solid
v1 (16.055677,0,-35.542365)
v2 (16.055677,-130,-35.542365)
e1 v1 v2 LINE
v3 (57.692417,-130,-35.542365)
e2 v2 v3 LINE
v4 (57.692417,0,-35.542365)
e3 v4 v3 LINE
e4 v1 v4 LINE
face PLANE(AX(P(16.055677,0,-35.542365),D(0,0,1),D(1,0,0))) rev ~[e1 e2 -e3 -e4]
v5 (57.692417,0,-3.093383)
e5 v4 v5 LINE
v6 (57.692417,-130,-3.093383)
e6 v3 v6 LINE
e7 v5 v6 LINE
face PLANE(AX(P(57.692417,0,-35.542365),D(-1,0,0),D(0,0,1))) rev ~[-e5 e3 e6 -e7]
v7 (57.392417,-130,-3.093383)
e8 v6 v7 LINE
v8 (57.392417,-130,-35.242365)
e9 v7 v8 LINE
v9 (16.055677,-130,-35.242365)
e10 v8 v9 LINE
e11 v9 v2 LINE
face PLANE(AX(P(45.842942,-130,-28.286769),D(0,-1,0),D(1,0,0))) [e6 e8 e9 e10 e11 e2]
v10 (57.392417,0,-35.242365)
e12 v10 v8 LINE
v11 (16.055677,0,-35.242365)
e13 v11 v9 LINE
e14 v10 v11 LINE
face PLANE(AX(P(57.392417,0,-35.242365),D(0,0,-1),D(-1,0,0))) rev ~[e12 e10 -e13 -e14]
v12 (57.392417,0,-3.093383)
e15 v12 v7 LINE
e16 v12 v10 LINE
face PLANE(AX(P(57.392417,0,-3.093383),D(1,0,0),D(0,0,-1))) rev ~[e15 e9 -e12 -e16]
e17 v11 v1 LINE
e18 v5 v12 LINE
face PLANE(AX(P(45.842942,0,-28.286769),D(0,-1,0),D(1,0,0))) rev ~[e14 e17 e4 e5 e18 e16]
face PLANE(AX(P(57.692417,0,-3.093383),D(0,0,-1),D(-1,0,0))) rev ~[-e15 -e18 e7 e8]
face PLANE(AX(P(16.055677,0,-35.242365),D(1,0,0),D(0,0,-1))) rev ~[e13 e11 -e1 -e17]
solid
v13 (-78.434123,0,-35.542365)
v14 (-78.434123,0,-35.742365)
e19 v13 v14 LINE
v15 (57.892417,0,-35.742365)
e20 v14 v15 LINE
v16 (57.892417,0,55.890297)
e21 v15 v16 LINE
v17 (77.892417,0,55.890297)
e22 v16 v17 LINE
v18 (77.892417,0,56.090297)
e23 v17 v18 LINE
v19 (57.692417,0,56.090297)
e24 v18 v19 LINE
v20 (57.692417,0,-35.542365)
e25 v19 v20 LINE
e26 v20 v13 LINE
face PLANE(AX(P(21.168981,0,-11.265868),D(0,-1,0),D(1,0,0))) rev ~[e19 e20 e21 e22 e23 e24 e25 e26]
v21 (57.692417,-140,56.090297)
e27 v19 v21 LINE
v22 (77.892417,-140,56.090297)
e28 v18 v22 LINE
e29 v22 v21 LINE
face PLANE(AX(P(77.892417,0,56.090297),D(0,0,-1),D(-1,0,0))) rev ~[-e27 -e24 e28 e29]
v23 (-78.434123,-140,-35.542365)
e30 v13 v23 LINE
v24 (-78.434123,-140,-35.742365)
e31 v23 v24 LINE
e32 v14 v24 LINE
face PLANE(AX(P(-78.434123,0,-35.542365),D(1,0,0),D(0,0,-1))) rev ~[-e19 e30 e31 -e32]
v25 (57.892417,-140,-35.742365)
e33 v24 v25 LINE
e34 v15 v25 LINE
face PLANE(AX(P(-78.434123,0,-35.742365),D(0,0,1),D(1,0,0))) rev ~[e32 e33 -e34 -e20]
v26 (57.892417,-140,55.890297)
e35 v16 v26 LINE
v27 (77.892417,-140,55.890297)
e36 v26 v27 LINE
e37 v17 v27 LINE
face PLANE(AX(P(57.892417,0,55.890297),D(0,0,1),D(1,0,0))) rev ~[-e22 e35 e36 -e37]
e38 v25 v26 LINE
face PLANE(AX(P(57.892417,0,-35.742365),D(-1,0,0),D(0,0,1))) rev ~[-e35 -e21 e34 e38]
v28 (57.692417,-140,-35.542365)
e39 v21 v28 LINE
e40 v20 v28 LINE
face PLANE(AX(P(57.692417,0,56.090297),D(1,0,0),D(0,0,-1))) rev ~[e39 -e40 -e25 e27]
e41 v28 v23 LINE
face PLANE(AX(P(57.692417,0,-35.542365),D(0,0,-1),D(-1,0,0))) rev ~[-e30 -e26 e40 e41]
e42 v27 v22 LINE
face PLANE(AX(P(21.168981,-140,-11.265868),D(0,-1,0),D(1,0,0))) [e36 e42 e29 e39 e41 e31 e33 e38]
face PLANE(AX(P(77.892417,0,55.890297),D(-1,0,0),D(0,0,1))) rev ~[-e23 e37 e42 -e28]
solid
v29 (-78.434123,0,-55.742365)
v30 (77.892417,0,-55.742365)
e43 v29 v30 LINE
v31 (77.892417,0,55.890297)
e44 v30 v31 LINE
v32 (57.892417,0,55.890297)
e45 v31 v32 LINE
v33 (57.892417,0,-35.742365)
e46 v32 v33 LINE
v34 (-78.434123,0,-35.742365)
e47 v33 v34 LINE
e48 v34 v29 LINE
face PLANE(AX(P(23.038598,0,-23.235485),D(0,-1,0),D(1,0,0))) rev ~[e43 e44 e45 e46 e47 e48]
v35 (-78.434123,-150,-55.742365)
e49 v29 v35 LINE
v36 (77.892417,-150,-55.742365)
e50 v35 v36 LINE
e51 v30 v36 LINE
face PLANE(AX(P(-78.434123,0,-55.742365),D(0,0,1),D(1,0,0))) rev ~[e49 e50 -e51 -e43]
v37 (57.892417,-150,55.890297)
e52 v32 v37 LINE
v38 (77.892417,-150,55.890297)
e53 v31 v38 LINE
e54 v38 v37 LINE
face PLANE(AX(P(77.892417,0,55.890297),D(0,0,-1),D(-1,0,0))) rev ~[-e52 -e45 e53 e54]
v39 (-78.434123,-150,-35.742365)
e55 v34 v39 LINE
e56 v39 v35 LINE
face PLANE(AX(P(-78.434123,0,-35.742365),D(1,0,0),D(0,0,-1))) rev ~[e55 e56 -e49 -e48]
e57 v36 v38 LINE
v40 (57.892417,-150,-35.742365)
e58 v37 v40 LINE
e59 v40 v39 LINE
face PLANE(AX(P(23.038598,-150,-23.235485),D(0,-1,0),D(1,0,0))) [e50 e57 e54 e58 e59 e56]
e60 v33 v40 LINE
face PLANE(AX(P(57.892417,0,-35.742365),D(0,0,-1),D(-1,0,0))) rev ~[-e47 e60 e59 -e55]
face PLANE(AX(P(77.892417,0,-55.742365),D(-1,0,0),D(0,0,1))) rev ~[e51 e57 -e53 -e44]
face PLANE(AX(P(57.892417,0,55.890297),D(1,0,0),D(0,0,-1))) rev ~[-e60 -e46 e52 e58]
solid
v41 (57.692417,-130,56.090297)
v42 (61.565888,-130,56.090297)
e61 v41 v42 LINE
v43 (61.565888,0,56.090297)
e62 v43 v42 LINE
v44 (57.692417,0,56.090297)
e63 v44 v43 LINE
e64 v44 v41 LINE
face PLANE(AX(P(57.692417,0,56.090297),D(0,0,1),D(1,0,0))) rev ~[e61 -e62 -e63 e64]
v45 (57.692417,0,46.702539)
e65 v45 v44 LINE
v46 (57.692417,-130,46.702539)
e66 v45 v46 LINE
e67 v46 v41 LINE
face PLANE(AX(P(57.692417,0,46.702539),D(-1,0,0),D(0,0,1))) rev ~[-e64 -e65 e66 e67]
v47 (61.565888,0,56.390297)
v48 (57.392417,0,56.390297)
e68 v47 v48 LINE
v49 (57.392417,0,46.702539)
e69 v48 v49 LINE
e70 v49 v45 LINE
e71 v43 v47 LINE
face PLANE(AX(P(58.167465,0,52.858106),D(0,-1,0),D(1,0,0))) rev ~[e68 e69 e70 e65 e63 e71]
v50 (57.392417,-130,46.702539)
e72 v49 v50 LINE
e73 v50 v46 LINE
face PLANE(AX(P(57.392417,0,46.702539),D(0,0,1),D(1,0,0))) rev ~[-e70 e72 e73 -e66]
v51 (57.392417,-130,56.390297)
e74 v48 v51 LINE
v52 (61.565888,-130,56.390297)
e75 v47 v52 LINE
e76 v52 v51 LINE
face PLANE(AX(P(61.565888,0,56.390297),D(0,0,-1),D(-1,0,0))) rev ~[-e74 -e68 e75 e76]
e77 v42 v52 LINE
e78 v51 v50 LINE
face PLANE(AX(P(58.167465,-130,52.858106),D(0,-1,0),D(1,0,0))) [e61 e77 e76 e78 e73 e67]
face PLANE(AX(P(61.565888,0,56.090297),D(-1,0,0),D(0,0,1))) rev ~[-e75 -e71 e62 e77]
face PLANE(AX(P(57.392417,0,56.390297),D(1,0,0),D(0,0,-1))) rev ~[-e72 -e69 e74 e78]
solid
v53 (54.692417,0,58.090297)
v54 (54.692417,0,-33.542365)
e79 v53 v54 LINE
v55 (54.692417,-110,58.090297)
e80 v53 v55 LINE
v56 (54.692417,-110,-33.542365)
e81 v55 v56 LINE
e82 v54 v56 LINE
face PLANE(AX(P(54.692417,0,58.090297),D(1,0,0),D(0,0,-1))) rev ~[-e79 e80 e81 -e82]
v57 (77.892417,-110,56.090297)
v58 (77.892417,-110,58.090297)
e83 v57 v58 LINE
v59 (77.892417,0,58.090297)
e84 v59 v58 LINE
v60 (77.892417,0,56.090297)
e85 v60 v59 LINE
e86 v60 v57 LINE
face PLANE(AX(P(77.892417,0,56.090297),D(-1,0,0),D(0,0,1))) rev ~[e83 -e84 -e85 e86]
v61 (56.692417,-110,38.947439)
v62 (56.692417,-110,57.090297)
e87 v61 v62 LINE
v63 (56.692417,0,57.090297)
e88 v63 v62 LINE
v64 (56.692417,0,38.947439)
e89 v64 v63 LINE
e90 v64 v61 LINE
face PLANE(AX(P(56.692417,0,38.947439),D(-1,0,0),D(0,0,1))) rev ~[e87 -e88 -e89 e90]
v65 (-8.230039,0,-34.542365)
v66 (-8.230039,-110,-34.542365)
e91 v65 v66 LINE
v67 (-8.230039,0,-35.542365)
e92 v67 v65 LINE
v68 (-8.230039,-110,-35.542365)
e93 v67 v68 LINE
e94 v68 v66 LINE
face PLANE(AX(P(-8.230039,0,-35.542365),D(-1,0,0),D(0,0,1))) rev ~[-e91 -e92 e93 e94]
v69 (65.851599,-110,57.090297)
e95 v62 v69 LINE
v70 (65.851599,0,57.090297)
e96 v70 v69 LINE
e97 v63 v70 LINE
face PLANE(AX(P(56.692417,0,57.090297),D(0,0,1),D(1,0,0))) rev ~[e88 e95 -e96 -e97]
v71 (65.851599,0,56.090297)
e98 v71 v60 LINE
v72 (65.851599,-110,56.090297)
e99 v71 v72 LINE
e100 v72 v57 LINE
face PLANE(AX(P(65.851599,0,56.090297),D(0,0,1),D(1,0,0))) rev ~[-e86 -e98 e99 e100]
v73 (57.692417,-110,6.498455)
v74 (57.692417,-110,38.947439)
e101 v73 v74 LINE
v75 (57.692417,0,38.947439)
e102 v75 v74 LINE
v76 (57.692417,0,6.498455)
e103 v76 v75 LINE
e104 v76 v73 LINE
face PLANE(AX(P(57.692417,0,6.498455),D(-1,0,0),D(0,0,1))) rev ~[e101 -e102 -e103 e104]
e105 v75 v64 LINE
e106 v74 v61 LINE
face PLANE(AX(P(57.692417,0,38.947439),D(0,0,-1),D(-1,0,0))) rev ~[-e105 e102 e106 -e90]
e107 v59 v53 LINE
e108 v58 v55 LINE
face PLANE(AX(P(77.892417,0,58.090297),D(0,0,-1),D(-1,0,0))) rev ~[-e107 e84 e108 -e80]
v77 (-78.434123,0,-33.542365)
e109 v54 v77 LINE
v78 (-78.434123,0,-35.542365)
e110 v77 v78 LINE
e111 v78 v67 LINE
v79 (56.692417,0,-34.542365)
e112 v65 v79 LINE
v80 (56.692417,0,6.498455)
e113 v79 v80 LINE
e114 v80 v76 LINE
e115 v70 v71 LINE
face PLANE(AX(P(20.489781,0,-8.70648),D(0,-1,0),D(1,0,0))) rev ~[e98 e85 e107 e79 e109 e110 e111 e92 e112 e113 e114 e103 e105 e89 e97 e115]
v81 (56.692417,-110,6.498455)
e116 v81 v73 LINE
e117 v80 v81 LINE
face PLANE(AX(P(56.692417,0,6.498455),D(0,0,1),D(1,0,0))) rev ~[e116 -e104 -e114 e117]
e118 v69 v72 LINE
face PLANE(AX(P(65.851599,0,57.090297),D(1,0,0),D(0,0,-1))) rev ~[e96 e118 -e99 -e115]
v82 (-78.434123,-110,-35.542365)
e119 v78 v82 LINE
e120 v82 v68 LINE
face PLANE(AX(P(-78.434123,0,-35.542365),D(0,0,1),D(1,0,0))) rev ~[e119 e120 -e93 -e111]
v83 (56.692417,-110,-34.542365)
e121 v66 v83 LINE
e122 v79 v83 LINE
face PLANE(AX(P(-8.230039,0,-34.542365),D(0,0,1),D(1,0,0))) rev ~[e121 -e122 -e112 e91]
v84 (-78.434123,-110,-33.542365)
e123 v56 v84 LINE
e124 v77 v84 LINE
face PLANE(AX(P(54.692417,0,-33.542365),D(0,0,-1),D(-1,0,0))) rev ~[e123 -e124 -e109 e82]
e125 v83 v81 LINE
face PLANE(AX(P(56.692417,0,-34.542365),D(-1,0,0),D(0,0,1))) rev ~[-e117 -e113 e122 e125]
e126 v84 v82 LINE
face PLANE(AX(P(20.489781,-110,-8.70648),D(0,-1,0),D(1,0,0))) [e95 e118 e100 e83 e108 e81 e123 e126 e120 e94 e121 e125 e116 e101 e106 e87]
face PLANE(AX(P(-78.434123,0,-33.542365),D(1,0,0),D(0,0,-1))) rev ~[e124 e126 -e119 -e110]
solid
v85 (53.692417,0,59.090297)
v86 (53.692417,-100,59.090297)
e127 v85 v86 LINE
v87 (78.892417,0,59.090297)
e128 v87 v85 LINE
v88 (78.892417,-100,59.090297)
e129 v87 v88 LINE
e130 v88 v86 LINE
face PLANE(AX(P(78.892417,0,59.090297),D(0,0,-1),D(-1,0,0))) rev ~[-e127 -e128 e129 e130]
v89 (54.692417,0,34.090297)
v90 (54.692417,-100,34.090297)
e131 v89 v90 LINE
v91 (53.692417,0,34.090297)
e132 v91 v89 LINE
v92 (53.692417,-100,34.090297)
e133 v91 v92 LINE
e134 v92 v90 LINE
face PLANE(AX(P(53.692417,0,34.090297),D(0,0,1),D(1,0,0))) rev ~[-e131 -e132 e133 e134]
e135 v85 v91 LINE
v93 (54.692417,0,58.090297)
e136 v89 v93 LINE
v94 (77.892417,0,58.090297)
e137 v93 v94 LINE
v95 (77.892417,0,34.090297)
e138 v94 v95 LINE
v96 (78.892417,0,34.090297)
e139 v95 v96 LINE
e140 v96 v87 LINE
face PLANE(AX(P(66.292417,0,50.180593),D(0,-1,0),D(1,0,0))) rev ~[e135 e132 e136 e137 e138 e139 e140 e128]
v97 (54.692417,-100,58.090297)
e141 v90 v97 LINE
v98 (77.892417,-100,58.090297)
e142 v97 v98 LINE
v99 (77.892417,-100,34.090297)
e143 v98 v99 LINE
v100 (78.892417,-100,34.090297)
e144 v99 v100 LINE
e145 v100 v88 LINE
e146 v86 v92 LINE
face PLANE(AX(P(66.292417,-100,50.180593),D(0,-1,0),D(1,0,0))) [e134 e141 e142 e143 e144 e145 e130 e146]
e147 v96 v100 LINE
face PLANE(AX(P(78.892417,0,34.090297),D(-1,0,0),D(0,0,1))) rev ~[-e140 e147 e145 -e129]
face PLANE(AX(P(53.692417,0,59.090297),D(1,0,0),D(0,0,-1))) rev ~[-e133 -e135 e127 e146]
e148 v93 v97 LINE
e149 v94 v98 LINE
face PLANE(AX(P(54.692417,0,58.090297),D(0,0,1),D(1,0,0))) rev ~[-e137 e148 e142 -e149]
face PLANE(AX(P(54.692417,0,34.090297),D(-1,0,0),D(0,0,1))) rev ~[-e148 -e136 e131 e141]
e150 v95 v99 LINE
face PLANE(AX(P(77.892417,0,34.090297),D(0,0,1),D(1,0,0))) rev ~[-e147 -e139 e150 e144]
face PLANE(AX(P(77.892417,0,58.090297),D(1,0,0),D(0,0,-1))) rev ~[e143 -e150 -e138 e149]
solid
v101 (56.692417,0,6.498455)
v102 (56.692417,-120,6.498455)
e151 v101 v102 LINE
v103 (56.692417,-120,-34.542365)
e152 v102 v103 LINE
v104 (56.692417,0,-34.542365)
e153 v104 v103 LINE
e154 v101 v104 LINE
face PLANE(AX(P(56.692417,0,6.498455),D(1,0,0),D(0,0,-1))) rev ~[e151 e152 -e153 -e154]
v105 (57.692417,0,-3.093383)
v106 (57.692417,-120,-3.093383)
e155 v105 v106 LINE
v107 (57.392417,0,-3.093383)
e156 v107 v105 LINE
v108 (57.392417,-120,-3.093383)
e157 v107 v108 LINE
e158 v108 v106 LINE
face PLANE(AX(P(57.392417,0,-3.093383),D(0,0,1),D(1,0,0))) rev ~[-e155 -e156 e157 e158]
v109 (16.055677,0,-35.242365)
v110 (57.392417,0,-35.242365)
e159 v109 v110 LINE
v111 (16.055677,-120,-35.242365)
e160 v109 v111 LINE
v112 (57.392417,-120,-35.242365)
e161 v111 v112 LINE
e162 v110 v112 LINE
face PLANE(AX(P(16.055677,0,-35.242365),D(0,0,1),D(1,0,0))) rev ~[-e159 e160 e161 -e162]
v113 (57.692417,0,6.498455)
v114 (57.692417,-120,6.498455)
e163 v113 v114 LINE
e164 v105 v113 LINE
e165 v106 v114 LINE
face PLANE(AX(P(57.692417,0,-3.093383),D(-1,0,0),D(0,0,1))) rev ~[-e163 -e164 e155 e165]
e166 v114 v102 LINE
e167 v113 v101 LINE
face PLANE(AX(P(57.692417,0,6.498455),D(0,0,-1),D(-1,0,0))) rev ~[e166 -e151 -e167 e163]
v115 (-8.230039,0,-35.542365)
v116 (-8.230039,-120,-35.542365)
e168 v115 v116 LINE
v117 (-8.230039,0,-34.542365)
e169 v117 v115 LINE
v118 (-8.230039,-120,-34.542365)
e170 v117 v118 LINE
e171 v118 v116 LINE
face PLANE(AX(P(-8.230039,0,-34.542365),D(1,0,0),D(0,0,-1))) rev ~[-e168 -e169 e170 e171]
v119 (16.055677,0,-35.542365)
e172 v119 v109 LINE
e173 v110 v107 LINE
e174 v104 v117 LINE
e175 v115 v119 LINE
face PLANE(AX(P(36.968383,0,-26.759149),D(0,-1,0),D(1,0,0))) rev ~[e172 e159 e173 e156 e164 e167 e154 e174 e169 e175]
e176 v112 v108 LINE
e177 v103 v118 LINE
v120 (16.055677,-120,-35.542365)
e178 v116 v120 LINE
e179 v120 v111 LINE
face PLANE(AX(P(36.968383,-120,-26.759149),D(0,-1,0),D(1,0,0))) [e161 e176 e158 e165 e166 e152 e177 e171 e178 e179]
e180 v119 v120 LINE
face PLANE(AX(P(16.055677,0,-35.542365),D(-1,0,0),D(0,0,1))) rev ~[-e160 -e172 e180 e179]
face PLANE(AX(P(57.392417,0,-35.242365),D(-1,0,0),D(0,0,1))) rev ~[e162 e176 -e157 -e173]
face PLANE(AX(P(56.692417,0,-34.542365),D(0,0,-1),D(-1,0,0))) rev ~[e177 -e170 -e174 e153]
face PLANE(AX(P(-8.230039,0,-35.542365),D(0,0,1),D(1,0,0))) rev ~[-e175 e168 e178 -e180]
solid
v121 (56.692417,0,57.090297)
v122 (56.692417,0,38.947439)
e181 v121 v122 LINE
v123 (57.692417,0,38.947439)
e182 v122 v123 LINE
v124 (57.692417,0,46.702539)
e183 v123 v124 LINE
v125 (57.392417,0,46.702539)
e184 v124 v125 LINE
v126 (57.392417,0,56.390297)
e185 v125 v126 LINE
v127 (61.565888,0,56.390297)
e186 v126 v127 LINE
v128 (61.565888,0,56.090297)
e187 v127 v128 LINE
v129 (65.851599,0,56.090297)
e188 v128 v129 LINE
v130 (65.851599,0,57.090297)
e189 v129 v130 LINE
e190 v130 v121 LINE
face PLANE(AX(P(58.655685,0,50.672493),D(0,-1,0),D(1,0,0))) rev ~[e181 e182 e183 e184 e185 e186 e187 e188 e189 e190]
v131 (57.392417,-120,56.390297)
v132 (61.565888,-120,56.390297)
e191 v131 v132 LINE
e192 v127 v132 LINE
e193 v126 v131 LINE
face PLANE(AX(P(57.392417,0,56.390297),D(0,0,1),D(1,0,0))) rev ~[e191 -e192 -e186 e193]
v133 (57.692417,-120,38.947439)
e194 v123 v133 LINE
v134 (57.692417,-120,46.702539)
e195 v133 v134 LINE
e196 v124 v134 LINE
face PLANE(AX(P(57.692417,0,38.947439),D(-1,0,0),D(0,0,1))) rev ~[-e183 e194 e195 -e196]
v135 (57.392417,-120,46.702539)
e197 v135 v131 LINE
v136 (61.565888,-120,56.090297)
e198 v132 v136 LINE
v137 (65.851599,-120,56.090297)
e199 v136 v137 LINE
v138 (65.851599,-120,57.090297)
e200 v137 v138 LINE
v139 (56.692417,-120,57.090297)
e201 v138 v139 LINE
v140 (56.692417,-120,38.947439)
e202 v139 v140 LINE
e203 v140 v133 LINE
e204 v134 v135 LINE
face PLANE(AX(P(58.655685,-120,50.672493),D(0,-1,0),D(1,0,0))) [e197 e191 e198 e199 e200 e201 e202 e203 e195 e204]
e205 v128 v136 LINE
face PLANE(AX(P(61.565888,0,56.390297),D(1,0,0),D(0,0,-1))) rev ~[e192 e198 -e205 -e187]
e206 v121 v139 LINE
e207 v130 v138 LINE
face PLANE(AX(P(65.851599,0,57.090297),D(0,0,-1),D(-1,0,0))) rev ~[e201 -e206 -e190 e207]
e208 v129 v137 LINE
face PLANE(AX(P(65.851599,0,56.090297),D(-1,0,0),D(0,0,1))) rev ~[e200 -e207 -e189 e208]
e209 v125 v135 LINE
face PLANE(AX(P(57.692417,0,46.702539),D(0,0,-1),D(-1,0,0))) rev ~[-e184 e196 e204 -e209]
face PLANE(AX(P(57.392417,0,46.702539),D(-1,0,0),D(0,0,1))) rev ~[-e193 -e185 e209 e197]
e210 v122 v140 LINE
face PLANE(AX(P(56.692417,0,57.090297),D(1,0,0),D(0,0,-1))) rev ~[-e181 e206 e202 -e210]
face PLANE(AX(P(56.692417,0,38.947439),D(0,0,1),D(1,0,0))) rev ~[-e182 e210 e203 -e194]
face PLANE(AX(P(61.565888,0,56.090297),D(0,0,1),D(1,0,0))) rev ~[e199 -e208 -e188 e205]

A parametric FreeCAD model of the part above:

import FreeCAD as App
import Part
import Sketcher

doc = App.newDocument("Part")
body = doc.addObject("PartDesign::Body", "Body")

sketch1 = body.newObject("Sketcher::SketchObject", "Sketch")
sketch1.AttachmentSupport = (doc.getObject("XZ_Plane"), [""])
sketch1.MapMode = "FlatFace"
sketch1.addGeometry(Part.LineSegment(App.Vector(57.892417, -35.742365, 0), App.Vector(-78.434123, -35.742365, 0)), False)
sketch1.addGeometry(Part.LineSegment(App.Vector(-78.434123, -35.742365, 0), App.Vector(-78.434123, -55.742365, 0)), False)
sketch1.addGeometry(Part.LineSegment(App.Vector(-78.434123, -55.742365, 0), App.Vector(77.892417, -55.742365, 0)), False)
sketch1.addGeometry(Part.LineSegment(App.Vector(77.892417, -55.742365, 0), App.Vector(77.892417, 55.890297, 0)), False)
sketch1.addGeometry(Part.LineSegment(App.Vector(77.892417, 55.890297, 0), App.Vector(57.892417, 55.890297, 0)), False)
sketch1.addGeometry(Part.LineSegment(App.Vector(57.892417, 55.890297, 0), App.Vector(57.892417, -35.742365, 0)), False)
sketch1.addConstraint(Sketcher.Constraint("Coincident", 0, 2, 1, 1))
sketch1.addConstraint(Sketcher.Constraint("Coincident", 1, 2, 2, 1))
sketch1.addConstraint(Sketcher.Constraint("Coincident", 2, 2, 3, 1))
sketch1.addConstraint(Sketcher.Constraint("Coincident", 3, 2, 4, 1))
sketch1.addConstraint(Sketcher.Constraint("Coincident", 4, 2, 5, 1))
sketch1.addConstraint(Sketcher.Constraint("Coincident", 5, 2, 0, 1))
sketch1.addConstraint(Sketcher.Constraint("Horizontal", 0))
sketch1.addConstraint(Sketcher.Constraint("Vertical", 1))
sketch1.addConstraint(Sketcher.Constraint("Horizontal", 2))
sketch1.addConstraint(Sketcher.Constraint("Vertical", 3))
sketch1.addConstraint(Sketcher.Constraint("Horizontal", 4))
sketch1.addConstraint(Sketcher.Constraint("Vertical", 5))
sketch1.addConstraint(Sketcher.Constraint("Equal", 4, 1))
sketch1.addConstraint(Sketcher.Constraint("DistanceX", 4, 2, 4, 1, 20.0))
sketch1.addConstraint(Sketcher.Constraint("DistanceX", 0, 2, 0, 1, 136.32654))
sketch1.addConstraint(Sketcher.Constraint("DistanceY", 3, 1, 3, 2, 111.632662))
sketch1.addConstraint(Sketcher.Constraint("DistanceX", 0, 2, -1, 1, 78.434123))
sketch1.addConstraint(Sketcher.Constraint("DistanceY", 0, 2, -1, 1, 35.742365))
pad1 = body.newObject("PartDesign::Pad", "Pad")
pad1.Profile = sketch1
pad1.Length = 150
body2 = doc.addObject("PartDesign::Body", "Body001")

sketch2 = body2.newObject("Sketcher::SketchObject", "Sketch001")
sketch2.AttachmentSupport = (doc.getObject("XZ_Plane001"), [""])
sketch2.MapMode = "FlatFace"
sketch2.addGeometry(Part.LineSegment(App.Vector(-78.434123, -35.542365, 0), App.Vector(-78.434123, -35.742365, 0)), False)
sketch2.addGeometry(Part.LineSegment(App.Vector(-78.434123, -35.742365, 0), App.Vector(57.892417, -35.742365, 0)), False)
sketch2.addGeometry(Part.LineSegment(App.Vector(57.892417, -35.742365, 0), App.Vector(57.892417, 55.890297, 0)), False)
sketch2.addGeometry(Part.LineSegment(App.Vector(57.892417, 55.890297, 0), App.Vector(77.892417, 55.890297, 0)), False)
sketch2.addGeometry(Part.LineSegment(App.Vector(77.892417, 55.890297, 0), App.Vector(77.892417, 56.090297, 0)), False)
sketch2.addGeometry(Part.LineSegment(App.Vector(77.892417, 56.090297, 0), App.Vector(57.692417, 56.090297, 0)), False)
sketch2.addGeometry(Part.LineSegment(App.Vector(57.692417, 56.090297, 0), App.Vector(57.692417, -35.542365, 0)), False)
sketch2.addGeometry(Part.LineSegment(App.Vector(57.692417, -35.542365, 0), App.Vector(-78.434123, -35.542365, 0)), False)
sketch2.addConstraint(Sketcher.Constraint("Coincident", 0, 2, 1, 1))
sketch2.addConstraint(Sketcher.Constraint("Coincident", 1, 2, 2, 1))
sketch2.addConstraint(Sketcher.Constraint("Coincident", 2, 2, 3, 1))
sketch2.addConstraint(Sketcher.Constraint("Coincident", 3, 2, 4, 1))
sketch2.addConstraint(Sketcher.Constraint("Coincident", 4, 2, 5, 1))
sketch2.addConstraint(Sketcher.Constraint("Coincident", 5, 2, 6, 1))
sketch2.addConstraint(Sketcher.Constraint("Coincident", 6, 2, 7, 1))
sketch2.addConstraint(Sketcher.Constraint("Coincident", 7, 2, 0, 1))
sketch2.addConstraint(Sketcher.Constraint("Vertical", 0))
sketch2.addConstraint(Sketcher.Constraint("Horizontal", 1))
sketch2.addConstraint(Sketcher.Constraint("Vertical", 2))
sketch2.addConstraint(Sketcher.Constraint("Horizontal", 3))
sketch2.addConstraint(Sketcher.Constraint("Vertical", 4))
sketch2.addConstraint(Sketcher.Constraint("Horizontal", 5))
sketch2.addConstraint(Sketcher.Constraint("Vertical", 6))
sketch2.addConstraint(Sketcher.Constraint("Horizontal", 7))
sketch2.addConstraint(Sketcher.Constraint("Equal", 0, 4))
sketch2.addConstraint(Sketcher.Constraint("DistanceX", 3, 1, 3, 2, 20.0))
sketch2.addConstraint(Sketcher.Constraint("DistanceX", 5, 2, 5, 1, 20.2))
sketch2.addConstraint(Sketcher.Constraint("DistanceY", 0, 2, 0, 1, 0.2))
sketch2.addConstraint(Sketcher.Constraint("DistanceX", 1, 1, 1, 2, 136.32654))
sketch2.addConstraint(Sketcher.Constraint("DistanceY", 2, 1, 2, 2, 91.632662))
sketch2.addConstraint(Sketcher.Constraint("DistanceX", 0, 2, -1, 1, 78.434123))
sketch2.addConstraint(Sketcher.Constraint("DistanceY", 0, 2, -1, 1, 35.742365))
pad2 = body2.newObject("PartDesign::Pad", "Pad001")
pad2.Profile = sketch2
pad2.Length = 140
body3 = doc.addObject("PartDesign::Body", "Body002")

sketch3 = body3.newObject("Sketcher::SketchObject", "Sketch002")
sketch3.AttachmentSupport = (doc.getObject("XZ_Plane002"), [""])
sketch3.MapMode = "FlatFace"
sketch3.addGeometry(Part.LineSegment(App.Vector(16.055677, -35.242365, 0), App.Vector(16.055677, -35.542365, 0)), False)
sketch3.addGeometry(Part.LineSegment(App.Vector(16.055677, -35.542365, 0), App.Vector(57.692417, -35.542365, 0)), False)
sketch3.addGeometry(Part.LineSegment(App.Vector(57.692417, -35.542365, 0), App.Vector(57.692417, -3.093383, 0)), False)
sketch3.addGeometry(Part.LineSegment(App.Vector(57.692417, -3.093383, 0), App.Vector(57.392417, -3.093383, 0)), False)
sketch3.addGeometry(Part.LineSegment(App.Vector(57.392417, -3.093383, 0), App.Vector(57.392417, -35.242365, 0)), False)
sketch3.addGeometry(Part.LineSegment(App.Vector(57.392417, -35.242365, 0), App.Vector(16.055677, -35.242365, 0)), False)
sketch3.addConstraint(Sketcher.Constraint("Coincident", 0, 2, 1, 1))
sketch3.addConstraint(Sketcher.Constraint("Coincident", 1, 2, 2, 1))
sketch3.addConstraint(Sketcher.Constraint("Coincident", 2, 2, 3, 1))
sketch3.addConstraint(Sketcher.Constraint("Coincident", 3, 2, 4, 1))
sketch3.addConstraint(Sketcher.Constraint("Coincident", 4, 2, 5, 1))
sketch3.addConstraint(Sketcher.Constraint("Coincident", 5, 2, 0, 1))
sketch3.addConstraint(Sketcher.Constraint("Vertical", 0))
sketch3.addConstraint(Sketcher.Constraint("Horizontal", 1))
sketch3.addConstraint(Sketcher.Constraint("Vertical", 2))
sketch3.addConstraint(Sketcher.Constraint("Horizontal", 3))
sketch3.addConstraint(Sketcher.Constraint("Vertical", 4))
sketch3.addConstraint(Sketcher.Constraint("Horizontal", 5))
sketch3.addConstraint(Sketcher.Constraint("Equal", 3, 0))
sketch3.addConstraint(Sketcher.Constraint("DistanceX", 3, 2, 3, 1, 0.3))
sketch3.addConstraint(Sketcher.Constraint("DistanceX", 1, 1, 1, 2, 41.63674))
sketch3.addConstraint(Sketcher.Constraint("DistanceY", 2, 1, 2, 2, 32.448982))
sketch3.addConstraint(Sketcher.Constraint("DistanceX", -1, 1, 0, 2, 16.055677))
sketch3.addConstraint(Sketcher.Constraint("DistanceY", 0, 2, -1, 1, 35.542365))
pad3 = body3.newObject("PartDesign::Pad", "Pad002")
pad3.Profile = sketch3
pad3.Length = 130
body4 = doc.addObject("PartDesign::Body", "Body003")

sketch4 = body4.newObject("Sketcher::SketchObject", "Sketch003")
sketch4.AttachmentSupport = (doc.getObject("XZ_Plane003"), [""])
sketch4.MapMode = "FlatFace"
sketch4.addGeometry(Part.LineSegment(App.Vector(57.692417, 56.090297, 0), App.Vector(61.565888, 56.090297, 0)), False)
sketch4.addGeometry(Part.LineSegment(App.Vector(61.565888, 56.090297, 0), App.Vector(61.565888, 56.390297, 0)), False)
sketch4.addGeometry(Part.LineSegment(App.Vector(61.565888, 56.390297, 0), App.Vector(57.392417, 56.390297, 0)), False)
sketch4.addGeometry(Part.LineSegment(App.Vector(57.392417, 56.390297, 0), App.Vector(57.392417, 46.702539, 0)), False)
sketch4.addGeometry(Part.LineSegment(App.Vector(57.392417, 46.702539, 0), App.Vector(57.692417, 46.702539, 0)), False)
sketch4.addGeometry(Part.LineSegment(App.Vector(57.692417, 46.702539, 0), App.Vector(57.692417, 56.090297, 0)), False)
sketch4.addConstraint(Sketcher.Constraint("Coincident", 0, 2, 1, 1))
sketch4.addConstraint(Sketcher.Constraint("Coincident", 1, 2, 2, 1))
sketch4.addConstraint(Sketcher.Constraint("Coincident", 2, 2, 3, 1))
sketch4.addConstraint(Sketcher.Constraint("Coincident", 3, 2, 4, 1))
sketch4.addConstraint(Sketcher.Constraint("Coincident", 4, 2, 5, 1))
sketch4.addConstraint(Sketcher.Constraint("Coincident", 5, 2, 0, 1))
sketch4.addConstraint(Sketcher.Constraint("Horizontal", 0))
sketch4.addConstraint(Sketcher.Constraint("Vertical", 1))
sketch4.addConstraint(Sketcher.Constraint("Horizontal", 2))
sketch4.addConstraint(Sketcher.Constraint("Vertical", 3))
sketch4.addConstraint(Sketcher.Constraint("Horizontal", 4))
sketch4.addConstraint(Sketcher.Constraint("Vertical", 5))
sketch4.addConstraint(Sketcher.Constraint("Equal", 4, 1))
sketch4.addConstraint(Sketcher.Constraint("DistanceX", 4, 1, 4, 2, 0.3))
sketch4.addConstraint(Sketcher.Constraint("DistanceX", 0, 1, 0, 2, 3.873471))
sketch4.addConstraint(Sketcher.Constraint("DistanceY", 3, 2, 3, 1, 9.687758))
sketch4.addConstraint(Sketcher.Constraint("DistanceY", -1, 1, 3, 2, 46.702539))
sketch4.addConstraint(Sketcher.Constraint("DistanceX", -1, 1, 0, 2, 61.565888))
pad4 = body4.newObject("PartDesign::Pad", "Pad003")
pad4.Profile = sketch4
pad4.Length = 130
body5 = doc.addObject("PartDesign::Body", "Body004")

sketch5 = body5.newObject("Sketcher::SketchObject", "Sketch004")
sketch5.AttachmentSupport = (doc.getObject("XZ_Plane004"), [""])
sketch5.MapMode = "FlatFace"
sketch5.addGeometry(Part.LineSegment(App.Vector(61.565888, 56.090297, 0), App.Vector(65.851599, 56.090297, 0)), False)
sketch5.addGeometry(Part.LineSegment(App.Vector(65.851599, 56.090297, 0), App.Vector(65.851599, 57.090297, 0)), False)
sketch5.addGeometry(Part.LineSegment(App.Vector(65.851599, 57.090297, 0), App.Vector(56.692417, 57.090297, 0)), False)
sketch5.addGeometry(Part.LineSegment(App.Vector(56.692417, 57.090297, 0), App.Vector(56.692417, 38.947439, 0)), False)
sketch5.addGeometry(Part.LineSegment(App.Vector(56.692417, 38.947439, 0), App.Vector(57.692417, 38.947439, 0)), False)
sketch5.addGeometry(Part.LineSegment(App.Vector(57.692417, 38.947439, 0), App.Vector(57.692417, 46.702539, 0)), False)
sketch5.addGeometry(Part.LineSegment(App.Vector(57.692417, 46.702539, 0), App.Vector(57.392417, 46.702539, 0)), False)
sketch5.addGeometry(Part.LineSegment(App.Vector(57.392417, 46.702539, 0), App.Vector(57.392417, 56.390297, 0)), False)
sketch5.addGeometry(Part.LineSegment(App.Vector(57.392417, 56.390297, 0), App.Vector(61.565888, 56.390297, 0)), False)
sketch5.addGeometry(Part.LineSegment(App.Vector(61.565888, 56.390297, 0), App.Vector(61.565888, 56.090297, 0)), False)
sketch5.addConstraint(Sketcher.Constraint("Coincident", 0, 2, 1, 1))
sketch5.addConstraint(Sketcher.Constraint("Coincident", 1, 2, 2, 1))
sketch5.addConstraint(Sketcher.Constraint("Coincident", 2, 2, 3, 1))
sketch5.addConstraint(Sketcher.Constraint("Coincident", 3, 2, 4, 1))
sketch5.addConstraint(Sketcher.Constraint("Coincident", 4, 2, 5, 1))
sketch5.addConstraint(Sketcher.Constraint("Coincident", 5, 2, 6, 1))
sketch5.addConstraint(Sketcher.Constraint("Coincident", 6, 2, 7, 1))
sketch5.addConstraint(Sketcher.Constraint("Coincident", 7, 2, 8, 1))
sketch5.addConstraint(Sketcher.Constraint("Coincident", 8, 2, 9, 1))
sketch5.addConstraint(Sketcher.Constraint("Coincident", 9, 2, 0, 1))
sketch5.addConstraint(Sketcher.Constraint("Horizontal", 0))
sketch5.addConstraint(Sketcher.Constraint("Vertical", 1))
sketch5.addConstraint(Sketcher.Constraint("Horizontal", 2))
sketch5.addConstraint(Sketcher.Constraint("Vertical", 3))
sketch5.addConstraint(Sketcher.Constraint("Horizontal", 4))
sketch5.addConstraint(Sketcher.Constraint("Vertical", 5))
sketch5.addConstraint(Sketcher.Constraint("Horizontal", 6))
sketch5.addConstraint(Sketcher.Constraint("Vertical", 7))
sketch5.addConstraint(Sketcher.Constraint("Horizontal", 8))
sketch5.addConstraint(Sketcher.Constraint("Vertical", 9))
sketch5.addConstraint(Sketcher.Constraint("Equal", 4, 1))
sketch5.addConstraint(Sketcher.Constraint("Equal", 6, 9))
sketch5.addConstraint(Sketcher.Constraint("DistanceX", 4, 1, 4, 2, 1.0))
sketch5.addConstraint(Sketcher.Constraint("DistanceX", 6, 2, 6, 1, 0.3))
sketch5.addConstraint(Sketcher.Constraint("DistanceY", 5, 1, 5, 2, 7.7551))
sketch5.addConstraint(Sketcher.Constraint("DistanceX", 0, 1, 0, 2, 4.285711))
sketch5.addConstraint(Sketcher.Constraint("DistanceX", 2, 2, 2, 1, 9.159182))
sketch5.addConstraint(Sketcher.Constraint("DistanceX", -1, 1, 0, 2, 65.851599))
sketch5.addConstraint(Sketcher.Constraint("DistanceY", 3, 2, 3, 1, 18.142858))
sketch5.addConstraint(Sketcher.Constraint("DistanceY", -1, 1, 3, 2, 38.947439))
pad5 = body5.newObject("PartDesign::Pad", "Pad004")
pad5.Profile = sketch5
pad5.Length = 120
body6 = doc.addObject("PartDesign::Body", "Body005")

sketch6 = body6.newObject("Sketcher::SketchObject", "Sketch005")
sketch6.AttachmentSupport = (doc.getObject("XZ_Plane005"), [""])
sketch6.MapMode = "FlatFace"
sketch6.addGeometry(Part.LineSegment(App.Vector(-8.230039, -34.542365, 0), App.Vector(-8.230039, -35.542365, 0)), False)
sketch6.addGeometry(Part.LineSegment(App.Vector(-8.230039, -35.542365, 0), App.Vector(16.055677, -35.542365, 0)), False)
sketch6.addGeometry(Part.LineSegment(App.Vector(16.055677, -35.542365, 0), App.Vector(16.055677, -35.242365, 0)), False)
sketch6.addGeometry(Part.LineSegment(App.Vector(16.055677, -35.242365, 0), App.Vector(57.392417, -35.242365, 0)), False)
sketch6.addGeometry(Part.LineSegment(App.Vector(57.392417, -35.242365, 0), App.Vector(57.392417, -3.093383, 0)), False)
sketch6.addGeometry(Part.LineSegment(App.Vector(57.392417, -3.093383, 0), App.Vector(57.692417, -3.093383, 0)), False)
sketch6.addGeometry(Part.LineSegment(App.Vector(57.692417, -3.093383, 0), App.Vector(57.692417, 6.498455, 0)), False)
sketch6.addGeometry(Part.LineSegment(App.Vector(57.692417, 6.498455, 0), App.Vector(56.692417, 6.498455, 0)), False)
sketch6.addGeometry(Part.LineSegment(App.Vector(56.692417, 6.498455, 0), App.Vector(56.692417, -34.542365, 0)), False)
sketch6.addGeometry(Part.LineSegment(App.Vector(56.692417, -34.542365, 0), App.Vector(-8.230039, -34.542365, 0)), False)
sketch6.addConstraint(Sketcher.Constraint("Coincident", 0, 2, 1, 1))
sketch6.addConstraint(Sketcher.Constraint("Coincident", 1, 2, 2, 1))
sketch6.addConstraint(Sketcher.Constraint("Coincident", 2, 2, 3, 1))
sketch6.addConstraint(Sketcher.Constraint("Coincident", 3, 2, 4, 1))
sketch6.addConstraint(Sketcher.Constraint("Coincident", 4, 2, 5, 1))
sketch6.addConstraint(Sketcher.Constraint("Coincident", 5, 2, 6, 1))
sketch6.addConstraint(Sketcher.Constraint("Coincident", 6, 2, 7, 1))
sketch6.addConstraint(Sketcher.Constraint("Coincident", 7, 2, 8, 1))
sketch6.addConstraint(Sketcher.Constraint("Coincident", 8, 2, 9, 1))
sketch6.addConstraint(Sketcher.Constraint("Coincident", 9, 2, 0, 1))
sketch6.addConstraint(Sketcher.Constraint("Vertical", 0))
sketch6.addConstraint(Sketcher.Constraint("Horizontal", 1))
sketch6.addConstraint(Sketcher.Constraint("Vertical", 2))
sketch6.addConstraint(Sketcher.Constraint("Horizontal", 3))
sketch6.addConstraint(Sketcher.Constraint("Vertical", 4))
sketch6.addConstraint(Sketcher.Constraint("Horizontal", 5))
sketch6.addConstraint(Sketcher.Constraint("Vertical", 6))
sketch6.addConstraint(Sketcher.Constraint("Horizontal", 7))
sketch6.addConstraint(Sketcher.Constraint("Vertical", 8))
sketch6.addConstraint(Sketcher.Constraint("Horizontal", 9))
sketch6.addConstraint(Sketcher.Constraint("Equal", 7, 0))
sketch6.addConstraint(Sketcher.Constraint("Equal", 5, 2))
sketch6.addConstraint(Sketcher.Constraint("DistanceX", 7, 2, 7, 1, 1.0))
sketch6.addConstraint(Sketcher.Constraint("DistanceX", 5, 1, 5, 2, 0.3))
sketch6.addConstraint(Sketcher.Constraint("DistanceX", 3, 1, 3, 2, 41.33674))
sketch6.addConstraint(Sketcher.Constraint("DistanceY", 4, 1, 4, 2, 32.148982))
sketch6.addConstraint(Sketcher.Constraint("DistanceY", 8, 2, 8, 1, 41.04082))
sketch6.addConstraint(Sketcher.Constraint("DistanceX", 1, 1, 1, 2, 24.285716))
sketch6.addConstraint(Sketcher.Constraint("DistanceX", 0, 2, -1, 1, 8.230039))
sketch6.addConstraint(Sketcher.Constraint("DistanceY", 0, 2, -1, 1, 35.542365))
pad6 = body6.newObject("PartDesign::Pad", "Pad005")
pad6.Profile = sketch6
pad6.Length = 120
body7 = doc.addObject("PartDesign::Body", "Body006")

sketch7 = body7.newObject("Sketcher::SketchObject", "Sketch006")
sketch7.AttachmentSupport = (doc.getObject("XZ_Plane006"), [""])
sketch7.MapMode = "FlatFace"
sketch7.addGeometry(Part.LineSegment(App.Vector(-78.434123, -33.542365, 0), App.Vector(-78.434123, -35.542365, 0)), False)
sketch7.addGeometry(Part.LineSegment(App.Vector(-78.434123, -35.542365, 0), App.Vector(-8.230039, -35.542365, 0)), False)
sketch7.addGeometry(Part.LineSegment(App.Vector(-8.230039, -35.542365, 0), App.Vector(-8.230039, -34.542365, 0)), False)
sketch7.addGeometry(Part.LineSegment(App.Vector(-8.230039, -34.542365, 0), App.Vector(56.692417, -34.542365, 0)), False)
sketch7.addGeometry(Part.LineSegment(App.Vector(56.692417, -34.542365, 0), App.Vector(56.692417, 6.498455, 0)), False)
sketch7.addGeometry(Part.LineSegment(App.Vector(56.692417, 6.498455, 0), App.Vector(57.692417, 6.498455, 0)), False)
sketch7.addGeometry(Part.LineSegment(App.Vector(57.692417, 6.498455, 0), App.Vector(57.692417, 38.947439, 0)), False)
sketch7.addGeometry(Part.LineSegment(App.Vector(57.692417, 38.947439, 0), App.Vector(56.692417, 38.947439, 0)), False)
sketch7.addGeometry(Part.LineSegment(App.Vector(56.692417, 38.947439, 0), App.Vector(56.692417, 57.090297, 0)), False)
sketch7.addGeometry(Part.LineSegment(App.Vector(56.692417, 57.090297, 0), App.Vector(65.851599, 57.090297, 0)), False)
sketch7.addGeometry(Part.LineSegment(App.Vector(65.851599, 57.090297, 0), App.Vector(65.851599, 56.090297, 0)), False)
sketch7.addGeometry(Part.LineSegment(App.Vector(65.851599, 56.090297, 0), App.Vector(77.892417, 56.090297, 0)), False)
sketch7.addGeometry(Part.LineSegment(App.Vector(77.892417, 56.090297, 0), App.Vector(77.892417, 58.090297, 0)), False)
sketch7.addGeometry(Part.LineSegment(App.Vector(77.892417, 58.090297, 0), App.Vector(54.692417, 58.090297, 0)), False)
sketch7.addGeometry(Part.LineSegment(App.Vector(54.692417, 58.090297, 0), App.Vector(54.692417, -33.542365, 0)), False)
sketch7.addGeometry(Part.LineSegment(App.Vector(54.692417, -33.542365, 0), App.Vector(-78.434123, -33.542365, 0)), False)
sketch7.addConstraint(Sketcher.Constraint("Coincident", 0, 2, 1, 1))
sketch7.addConstraint(Sketcher.Constraint("Coincident", 1, 2, 2, 1))
sketch7.addConstraint(Sketcher.Constraint("Coincident", 2, 2, 3, 1))
sketch7.addConstraint(Sketcher.Constraint("Coincident", 3, 2, 4, 1))
sketch7.addConstraint(Sketcher.Constraint("Coincident", 4, 2, 5, 1))
sketch7.addConstraint(Sketcher.Constraint("Coincident", 5, 2, 6, 1))
sketch7.addConstraint(Sketcher.Constraint("Coincident", 6, 2, 7, 1))
sketch7.addConstraint(Sketcher.Constraint("Coincident", 7, 2, 8, 1))
sketch7.addConstraint(Sketcher.Constraint("Coincident", 8, 2, 9, 1))
sketch7.addConstraint(Sketcher.Constraint("Coincident", 9, 2, 10, 1))
sketch7.addConstraint(Sketcher.Constraint("Coincident", 10, 2, 11, 1))
sketch7.addConstraint(Sketcher.Constraint("Coincident", 11, 2, 12, 1))
sketch7.addConstraint(Sketcher.Constraint("Coincident", 12, 2, 13, 1))
sketch7.addConstraint(Sketcher.Constraint("Coincident", 13, 2, 14, 1))
sketch7.addConstraint(Sketcher.Constraint("Coincident", 14, 2, 15, 1))
sketch7.addConstraint(Sketcher.Constraint("Coincident", 15, 2, 0, 1))
sketch7.addConstraint(Sketcher.Constraint("Vertical", 0))
sketch7.addConstraint(Sketcher.Constraint("Horizontal", 1))
sketch7.addConstraint(Sketcher.Constraint("Vertical", 2))
sketch7.addConstraint(Sketcher.Constraint("Horizontal", 3))
sketch7.addConstraint(Sketcher.Constraint("Vertical", 4))
sketch7.addConstraint(Sketcher.Constraint("Horizontal", 5))
sketch7.addConstraint(Sketcher.Constraint("Vertical", 6))
sketch7.addConstraint(Sketcher.Constraint("Horizontal", 7))
sketch7.addConstraint(Sketcher.Constraint("Vertical", 8))
sketch7.addConstraint(Sketcher.Constraint("Horizontal", 9))
sketch7.addConstraint(Sketcher.Constraint("Vertical", 10))
sketch7.addConstraint(Sketcher.Constraint("Horizontal", 11))
sketch7.addConstraint(Sketcher.Constraint("Vertical", 12))
sketch7.addConstraint(Sketcher.Constraint("Horizontal", 13))
sketch7.addConstraint(Sketcher.Constraint("Vertical", 14))
sketch7.addConstraint(Sketcher.Constraint("Horizontal", 15))
sketch7.addConstraint(Sketcher.Constraint("Vertical", 4, 2, 7, 2))
sketch7.addConstraint(Sketcher.Constraint("Equal", 7, 2))
sketch7.addConstraint(Sketcher.Constraint("Equal", 2, 10))
sketch7.addConstraint(Sketcher.Constraint("Equal", 0, 12))
sketch7.addConstraint(Sketcher.Constraint("DistanceX", 5, 1, 5, 2, 1.0))
sketch7.addConstraint(Sketcher.Constraint("DistanceY", 0, 2, 0, 1, 2.0))
sketch7.addConstraint(Sketcher.Constraint("DistanceX", 13, 2, 13, 1, 23.2))
sketch7.addConstraint(Sketcher.Constraint("DistanceX", 13, 2, 8, 2, 2.0))
sketch7.addConstraint(Sketcher.Constraint("DistanceX", 9, 1, 9, 2, 9.159182))
sketch7.addConstraint(Sketcher.Constraint("DistanceX", 15, 2, 15, 1, 133.12654))
sketch7.addConstraint(Sketcher.Constraint("DistanceY", 4, 1, 4, 2, 41.04082))
sketch7.addConstraint(Sketcher.Constraint("DistanceY", 14, 2, 14, 1, 91.632662))
sketch7.addConstraint(Sketcher.Constraint("DistanceX", -1, 1, 9, 2, 65.851599))
sketch7.addConstraint(Sketcher.Constraint("DistanceX", 1, 1, 1, 2, 70.204084))
sketch7.addConstraint(Sketcher.Constraint("DistanceY", 6, 1, 6, 2, 32.448984))
sketch7.addConstraint(Sketcher.Constraint("DistanceY", -1, 1, 6, 2, 38.947439))
pad7 = body7.newObject("PartDesign::Pad", "Pad006")
pad7.Profile = sketch7
pad7.Length = 110
body8 = doc.addObject("PartDesign::Body", "Body007")

sketch8 = body8.newObject("Sketcher::SketchObject", "Sketch007")
sketch8.AttachmentSupport = (doc.getObject("XZ_Plane007"), [""])
sketch8.MapMode = "FlatFace"
sketch8.addGeometry(Part.LineSegment(App.Vector(77.892417, 34.090297, 0), App.Vector(78.892417, 34.090297, 0)), False)
sketch8.addGeometry(Part.LineSegment(App.Vector(78.892417, 34.090297, 0), App.Vector(78.892417, 59.090297, 0)), False)
sketch8.addGeometry(Part.LineSegment(App.Vector(78.892417, 59.090297, 0), App.Vector(53.692417, 59.090297, 0)), False)
sketch8.addGeometry(Part.LineSegment(App.Vector(53.692417, 59.090297, 0), App.Vector(53.692417, 34.090297, 0)), False)
sketch8.addGeometry(Part.LineSegment(App.Vector(53.692417, 34.090297, 0), App.Vector(54.692417, 34.090297, 0)), False)
sketch8.addGeometry(Part.LineSegment(App.Vector(54.692417, 34.090297, 0), App.Vector(54.692417, 58.090297, 0)), False)
sketch8.addGeometry(Part.LineSegment(App.Vector(54.692417, 58.090297, 0), App.Vector(77.892417, 58.090297, 0)), False)
sketch8.addGeometry(Part.LineSegment(App.Vector(77.892417, 58.090297, 0), App.Vector(77.892417, 34.090297, 0)), False)
sketch8.addConstraint(Sketcher.Constraint("Coincident", 0, 2, 1, 1))
sketch8.addConstraint(Sketcher.Constraint("Coincident", 1, 2, 2, 1))
sketch8.addConstraint(Sketcher.Constraint("Coincident", 2, 2, 3, 1))
sketch8.addConstraint(Sketcher.Constraint("Coincident", 3, 2, 4, 1))
sketch8.addConstraint(Sketcher.Constraint("Coincident", 4, 2, 5, 1))
sketch8.addConstraint(Sketcher.Constraint("Coincident", 5, 2, 6, 1))
sketch8.addConstraint(Sketcher.Constraint("Coincident", 6, 2, 7, 1))
sketch8.addConstraint(Sketcher.Constraint("Coincident", 7, 2, 0, 1))
sketch8.addConstraint(Sketcher.Constraint("Horizontal", 0))
sketch8.addConstraint(Sketcher.Constraint("Vertical", 1))
sketch8.addConstraint(Sketcher.Constraint("Horizontal", 2))
sketch8.addConstraint(Sketcher.Constraint("Vertical", 3))
sketch8.addConstraint(Sketcher.Constraint("Horizontal", 4))
sketch8.addConstraint(Sketcher.Constraint("Vertical", 5))
sketch8.addConstraint(Sketcher.Constraint("Horizontal", 6))
sketch8.addConstraint(Sketcher.Constraint("Vertical", 7))
sketch8.addConstraint(Sketcher.Constraint("Horizontal", 0, 2, 3, 2))
sketch8.addConstraint(Sketcher.Constraint("Equal", 0, 4))
sketch8.addConstraint(Sketcher.Constraint("DistanceX", 0, 1, 0, 2, 1.0))
sketch8.addConstraint(Sketcher.Constraint("DistanceY", 1, 1, 1, 2, 25.0))
sketch8.addConstraint(Sketcher.Constraint("DistanceY", 5, 1, 5, 2, 24.0))
sketch8.addConstraint(Sketcher.Constraint("DistanceX", 2, 2, 2, 1, 25.2))
sketch8.addConstraint(Sketcher.Constraint("DistanceX", -1, 1, 0, 2, 78.892417))
sketch8.addConstraint(Sketcher.Constraint("DistanceY", -1, 1, 0, 2, 34.090297))
pad8 = body8.newObject("PartDesign::Pad", "Pad007")
pad8.Profile = sketch8
pad8.Length = 100

doc.recompute()
